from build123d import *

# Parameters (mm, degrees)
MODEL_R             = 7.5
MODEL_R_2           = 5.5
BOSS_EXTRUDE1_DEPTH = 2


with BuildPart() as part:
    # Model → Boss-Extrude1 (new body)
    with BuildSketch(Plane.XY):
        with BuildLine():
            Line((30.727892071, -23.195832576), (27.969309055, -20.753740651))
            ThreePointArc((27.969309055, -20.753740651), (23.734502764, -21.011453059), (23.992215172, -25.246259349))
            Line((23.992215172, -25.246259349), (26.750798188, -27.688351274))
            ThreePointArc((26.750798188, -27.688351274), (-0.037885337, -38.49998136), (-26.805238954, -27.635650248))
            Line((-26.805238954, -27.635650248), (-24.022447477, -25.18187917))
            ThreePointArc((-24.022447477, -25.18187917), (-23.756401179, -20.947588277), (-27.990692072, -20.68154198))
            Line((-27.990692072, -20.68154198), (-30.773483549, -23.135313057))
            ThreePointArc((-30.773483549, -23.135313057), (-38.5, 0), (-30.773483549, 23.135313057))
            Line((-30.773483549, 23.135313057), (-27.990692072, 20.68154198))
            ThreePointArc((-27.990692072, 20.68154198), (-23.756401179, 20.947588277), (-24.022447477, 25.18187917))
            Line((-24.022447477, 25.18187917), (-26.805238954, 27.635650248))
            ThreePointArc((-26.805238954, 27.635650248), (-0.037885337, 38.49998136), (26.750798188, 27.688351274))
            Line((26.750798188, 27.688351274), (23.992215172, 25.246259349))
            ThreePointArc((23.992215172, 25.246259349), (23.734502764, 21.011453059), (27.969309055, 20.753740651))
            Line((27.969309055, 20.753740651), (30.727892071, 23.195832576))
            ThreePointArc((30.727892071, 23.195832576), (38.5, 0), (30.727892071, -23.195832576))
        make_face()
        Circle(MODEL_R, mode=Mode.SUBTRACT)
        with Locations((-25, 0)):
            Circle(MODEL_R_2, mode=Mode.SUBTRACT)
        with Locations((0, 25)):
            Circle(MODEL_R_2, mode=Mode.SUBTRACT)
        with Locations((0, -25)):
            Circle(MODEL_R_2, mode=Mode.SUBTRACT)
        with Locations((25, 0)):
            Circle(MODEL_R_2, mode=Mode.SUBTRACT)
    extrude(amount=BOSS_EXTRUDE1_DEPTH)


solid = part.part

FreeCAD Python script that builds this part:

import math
import FreeCAD as App
import Part
import Sketcher
from FreeCAD import Vector
Q = App.Units.Quantity

doc = App.newDocument("Part")
body = doc.addObject("PartDesign::Body", "Body")

# Sketch on XY plane
sketch1 = body.newObject("Sketcher::SketchObject", "Sketch")
sketch1.AttachmentSupport = (doc.getObject("XY_Plane"), [""])
sketch1.MapMode = "FlatFace"
sketch1.addGeometry([
    Part.LineSegment(Vector(28, -20.8, 0), Vector(30.7, -23.2, 0)),  # 0
    Part.ArcOfCircle(Part.Circle(Vector(0, 0, 0), Vector(0, 0, 1), 38.5), math.radians(-37), math.radians(37)),  # 1
    Part.LineSegment(Vector(30.7, 23.2, 0), Vector(28, 20.8, 0)),  # 2
    Part.ArcOfCircle(Part.Circle(Vector(26, 23, 0), Vector(0, 0, 1), 3), math.radians(132), math.radians(312)),  # 3
    Part.LineSegment(Vector(24, 25.2, 0), Vector(26.8, 27.7, 0)),  # 4
    Part.ArcOfCircle(Part.Circle(Vector(0, 0, 0), Vector(0, 0, 1), 38.5), math.radians(46), math.radians(134)),  # 5
    Part.LineSegment(Vector(-26.8, 27.6, 0), Vector(-24, 25.2, 0)),  # 6
    Part.ArcOfCircle(Part.Circle(Vector(-26, 22.9, 0), Vector(0, 0, 1), 3), math.radians(-131), math.radians(49)),  # 7
    Part.LineSegment(Vector(-28, 20.7, 0), Vector(-30.8, 23.1, 0)),  # 8
    Part.ArcOfCircle(Part.Circle(Vector(0, 0, 0), Vector(0, 0, 1), 38.5), math.radians(143), math.radians(217)),  # 9
    Part.LineSegment(Vector(-30.8, -23.1, 0), Vector(-28, -20.7, 0)),  # 10
    Part.ArcOfCircle(Part.Circle(Vector(-26, -22.9, 0), Vector(0, 0, 1), 3), math.radians(-49), math.radians(131)),  # 11
    Part.LineSegment(Vector(-24, -25.2, 0), Vector(-26.8, -27.6, 0)),  # 12
    Part.ArcOfCircle(Part.Circle(Vector(0, 0, 0), Vector(0, 0, 1), 38.5), math.radians(-134), math.radians(-46)),  # 13
    Part.LineSegment(Vector(26.8, -27.7, 0), Vector(24, -25.2, 0)),  # 14
    Part.ArcOfCircle(Part.Circle(Vector(26, -23, 0), Vector(0, 0, 1), 3), math.radians(48), math.radians(228)),  # 15
    Part.Circle(Vector(0, -25, 0), Vector(0, 0, 1), 5.5),  # 16
    Part.Circle(Vector(25, 0, 0), Vector(0, 0, 1), 5.5),  # 17
    Part.Circle(Vector(0, 0, 0), Vector(0, 0, 1), 7.5),  # 18
    Part.Circle(Vector(-25, 0, 0), Vector(0, 0, 1), 5.5),  # 19
    Part.Circle(Vector(0, 25, 0), Vector(0, 0, 1), 5.5),  # 20
], False)
sketch1.addConstraint([
    Sketcher.Constraint("Coincident", 0, 2, 1, 1),
    Sketcher.Constraint("Coincident", 1, 2, 2, 1),
    Sketcher.Constraint("Tangent", 2, 2, 3, 2),
    Sketcher.Constraint("Tangent", 3, 1, 4, 1),
    Sketcher.Constraint("Coincident", 4, 2, 5, 1),
    Sketcher.Constraint("Coincident", 5, 2, 6, 1),
    Sketcher.Constraint("Tangent", 6, 2, 7, 2),
    Sketcher.Constraint("Tangent", 7, 1, 8, 1),
    Sketcher.Constraint("Coincident", 8, 2, 9, 1),
    Sketcher.Constraint("Coincident", 9, 2, 10, 1),
    Sketcher.Constraint("Tangent", 10, 2, 11, 2),
    Sketcher.Constraint("Tangent", 11, 1, 12, 1),
    Sketcher.Constraint("Coincident", 12, 2, 13, 1),
    Sketcher.Constraint("Coincident", 13, 2, 14, 1),
    Sketcher.Constraint("Tangent", 14, 2, 15, 2),
    Sketcher.Constraint("Tangent", 15, 1, 0, 1),
    Sketcher.Constraint("Coincident", 1, 3, -1, 1),
    Sketcher.Constraint("Coincident", 5, 3, -1, 1),
    Sketcher.Constraint("Coincident", 9, 3, -1, 1),
    Sketcher.Constraint("Coincident", 13, 3, -1, 1),
    Sketcher.Constraint("Coincident", 18, 3, -1, 1),
    Sketcher.Constraint("Equal", 1, 5),
    Sketcher.Constraint("Equal", 3, 7),
    Sketcher.Constraint("Equal", 5, 9),
    Sketcher.Constraint("Equal", 7, 11),
    Sketcher.Constraint("Equal", 9, 13),
    Sketcher.Constraint("Equal", 11, 15),
    Sketcher.Constraint("Equal", 16, 17),
    Sketcher.Constraint("Equal", 17, 19),
    Sketcher.Constraint("Equal", 19, 20),
    Sketcher.Constraint("Symmetric", 17, 3, 19, 3, -1, 1),
    Sketcher.Constraint("Symmetric", 16, 3, 20, 3, -1, 1),
    Sketcher.Constraint("Symmetric", 7, 3, 11, 3, -1),
    Sketcher.Constraint("Symmetric", 3, 3, 15, 3, -1),
    Sketcher.Constraint("PointOnObject", 16, 3, -2),
    Sketcher.Constraint("PointOnObject", 17, 3, -1),
    Sketcher.Constraint("Parallel", 2, 4),
    Sketcher.Constraint("Parallel", 6, 8),
    Sketcher.Constraint("Parallel", 10, 12),
    Sketcher.Constraint("Parallel", 0, 14),
    Sketcher.Constraint("Vertical", 0, 2, 1, 2),
    Sketcher.Constraint("Vertical", 8, 2, 9, 2),
    Sketcher.Constraint("Equal", 2, 4),
    Sketcher.Constraint("Equal", 6, 8),
    Sketcher.Constraint("Diameter", 16, Q("11 mm")),
    Sketcher.Constraint("Diameter", 18, Q("15 mm")),
    Sketcher.Constraint("Radius", 3, Q("3 mm")),
    Sketcher.Constraint("Radius", 1, Q("38.5 mm")),
    Sketcher.Constraint("DistanceY", -1, 1, 3, 3, Q("23 mm")),
    Sketcher.Constraint("DistanceY", 16, 3, -1, 1, Q("25 mm")),
    Sketcher.Constraint("DistanceX", -1, 1, 17, 3, Q("25 mm")),
    Sketcher.Constraint("DistanceX", -1, 1, 4, 2, Q("26.750798 mm")),
    Sketcher.Constraint("Distance", 6, Q("3.710111 mm")),
    Sketcher.Constraint("DistanceX", 7, 3, -1, 1, Q("26.00657 mm")),
])
pad1 = body.newObject("PartDesign::Pad", "Pad")
pad1.Profile = sketch1
pad1.Length = 2

doc.recompute()
